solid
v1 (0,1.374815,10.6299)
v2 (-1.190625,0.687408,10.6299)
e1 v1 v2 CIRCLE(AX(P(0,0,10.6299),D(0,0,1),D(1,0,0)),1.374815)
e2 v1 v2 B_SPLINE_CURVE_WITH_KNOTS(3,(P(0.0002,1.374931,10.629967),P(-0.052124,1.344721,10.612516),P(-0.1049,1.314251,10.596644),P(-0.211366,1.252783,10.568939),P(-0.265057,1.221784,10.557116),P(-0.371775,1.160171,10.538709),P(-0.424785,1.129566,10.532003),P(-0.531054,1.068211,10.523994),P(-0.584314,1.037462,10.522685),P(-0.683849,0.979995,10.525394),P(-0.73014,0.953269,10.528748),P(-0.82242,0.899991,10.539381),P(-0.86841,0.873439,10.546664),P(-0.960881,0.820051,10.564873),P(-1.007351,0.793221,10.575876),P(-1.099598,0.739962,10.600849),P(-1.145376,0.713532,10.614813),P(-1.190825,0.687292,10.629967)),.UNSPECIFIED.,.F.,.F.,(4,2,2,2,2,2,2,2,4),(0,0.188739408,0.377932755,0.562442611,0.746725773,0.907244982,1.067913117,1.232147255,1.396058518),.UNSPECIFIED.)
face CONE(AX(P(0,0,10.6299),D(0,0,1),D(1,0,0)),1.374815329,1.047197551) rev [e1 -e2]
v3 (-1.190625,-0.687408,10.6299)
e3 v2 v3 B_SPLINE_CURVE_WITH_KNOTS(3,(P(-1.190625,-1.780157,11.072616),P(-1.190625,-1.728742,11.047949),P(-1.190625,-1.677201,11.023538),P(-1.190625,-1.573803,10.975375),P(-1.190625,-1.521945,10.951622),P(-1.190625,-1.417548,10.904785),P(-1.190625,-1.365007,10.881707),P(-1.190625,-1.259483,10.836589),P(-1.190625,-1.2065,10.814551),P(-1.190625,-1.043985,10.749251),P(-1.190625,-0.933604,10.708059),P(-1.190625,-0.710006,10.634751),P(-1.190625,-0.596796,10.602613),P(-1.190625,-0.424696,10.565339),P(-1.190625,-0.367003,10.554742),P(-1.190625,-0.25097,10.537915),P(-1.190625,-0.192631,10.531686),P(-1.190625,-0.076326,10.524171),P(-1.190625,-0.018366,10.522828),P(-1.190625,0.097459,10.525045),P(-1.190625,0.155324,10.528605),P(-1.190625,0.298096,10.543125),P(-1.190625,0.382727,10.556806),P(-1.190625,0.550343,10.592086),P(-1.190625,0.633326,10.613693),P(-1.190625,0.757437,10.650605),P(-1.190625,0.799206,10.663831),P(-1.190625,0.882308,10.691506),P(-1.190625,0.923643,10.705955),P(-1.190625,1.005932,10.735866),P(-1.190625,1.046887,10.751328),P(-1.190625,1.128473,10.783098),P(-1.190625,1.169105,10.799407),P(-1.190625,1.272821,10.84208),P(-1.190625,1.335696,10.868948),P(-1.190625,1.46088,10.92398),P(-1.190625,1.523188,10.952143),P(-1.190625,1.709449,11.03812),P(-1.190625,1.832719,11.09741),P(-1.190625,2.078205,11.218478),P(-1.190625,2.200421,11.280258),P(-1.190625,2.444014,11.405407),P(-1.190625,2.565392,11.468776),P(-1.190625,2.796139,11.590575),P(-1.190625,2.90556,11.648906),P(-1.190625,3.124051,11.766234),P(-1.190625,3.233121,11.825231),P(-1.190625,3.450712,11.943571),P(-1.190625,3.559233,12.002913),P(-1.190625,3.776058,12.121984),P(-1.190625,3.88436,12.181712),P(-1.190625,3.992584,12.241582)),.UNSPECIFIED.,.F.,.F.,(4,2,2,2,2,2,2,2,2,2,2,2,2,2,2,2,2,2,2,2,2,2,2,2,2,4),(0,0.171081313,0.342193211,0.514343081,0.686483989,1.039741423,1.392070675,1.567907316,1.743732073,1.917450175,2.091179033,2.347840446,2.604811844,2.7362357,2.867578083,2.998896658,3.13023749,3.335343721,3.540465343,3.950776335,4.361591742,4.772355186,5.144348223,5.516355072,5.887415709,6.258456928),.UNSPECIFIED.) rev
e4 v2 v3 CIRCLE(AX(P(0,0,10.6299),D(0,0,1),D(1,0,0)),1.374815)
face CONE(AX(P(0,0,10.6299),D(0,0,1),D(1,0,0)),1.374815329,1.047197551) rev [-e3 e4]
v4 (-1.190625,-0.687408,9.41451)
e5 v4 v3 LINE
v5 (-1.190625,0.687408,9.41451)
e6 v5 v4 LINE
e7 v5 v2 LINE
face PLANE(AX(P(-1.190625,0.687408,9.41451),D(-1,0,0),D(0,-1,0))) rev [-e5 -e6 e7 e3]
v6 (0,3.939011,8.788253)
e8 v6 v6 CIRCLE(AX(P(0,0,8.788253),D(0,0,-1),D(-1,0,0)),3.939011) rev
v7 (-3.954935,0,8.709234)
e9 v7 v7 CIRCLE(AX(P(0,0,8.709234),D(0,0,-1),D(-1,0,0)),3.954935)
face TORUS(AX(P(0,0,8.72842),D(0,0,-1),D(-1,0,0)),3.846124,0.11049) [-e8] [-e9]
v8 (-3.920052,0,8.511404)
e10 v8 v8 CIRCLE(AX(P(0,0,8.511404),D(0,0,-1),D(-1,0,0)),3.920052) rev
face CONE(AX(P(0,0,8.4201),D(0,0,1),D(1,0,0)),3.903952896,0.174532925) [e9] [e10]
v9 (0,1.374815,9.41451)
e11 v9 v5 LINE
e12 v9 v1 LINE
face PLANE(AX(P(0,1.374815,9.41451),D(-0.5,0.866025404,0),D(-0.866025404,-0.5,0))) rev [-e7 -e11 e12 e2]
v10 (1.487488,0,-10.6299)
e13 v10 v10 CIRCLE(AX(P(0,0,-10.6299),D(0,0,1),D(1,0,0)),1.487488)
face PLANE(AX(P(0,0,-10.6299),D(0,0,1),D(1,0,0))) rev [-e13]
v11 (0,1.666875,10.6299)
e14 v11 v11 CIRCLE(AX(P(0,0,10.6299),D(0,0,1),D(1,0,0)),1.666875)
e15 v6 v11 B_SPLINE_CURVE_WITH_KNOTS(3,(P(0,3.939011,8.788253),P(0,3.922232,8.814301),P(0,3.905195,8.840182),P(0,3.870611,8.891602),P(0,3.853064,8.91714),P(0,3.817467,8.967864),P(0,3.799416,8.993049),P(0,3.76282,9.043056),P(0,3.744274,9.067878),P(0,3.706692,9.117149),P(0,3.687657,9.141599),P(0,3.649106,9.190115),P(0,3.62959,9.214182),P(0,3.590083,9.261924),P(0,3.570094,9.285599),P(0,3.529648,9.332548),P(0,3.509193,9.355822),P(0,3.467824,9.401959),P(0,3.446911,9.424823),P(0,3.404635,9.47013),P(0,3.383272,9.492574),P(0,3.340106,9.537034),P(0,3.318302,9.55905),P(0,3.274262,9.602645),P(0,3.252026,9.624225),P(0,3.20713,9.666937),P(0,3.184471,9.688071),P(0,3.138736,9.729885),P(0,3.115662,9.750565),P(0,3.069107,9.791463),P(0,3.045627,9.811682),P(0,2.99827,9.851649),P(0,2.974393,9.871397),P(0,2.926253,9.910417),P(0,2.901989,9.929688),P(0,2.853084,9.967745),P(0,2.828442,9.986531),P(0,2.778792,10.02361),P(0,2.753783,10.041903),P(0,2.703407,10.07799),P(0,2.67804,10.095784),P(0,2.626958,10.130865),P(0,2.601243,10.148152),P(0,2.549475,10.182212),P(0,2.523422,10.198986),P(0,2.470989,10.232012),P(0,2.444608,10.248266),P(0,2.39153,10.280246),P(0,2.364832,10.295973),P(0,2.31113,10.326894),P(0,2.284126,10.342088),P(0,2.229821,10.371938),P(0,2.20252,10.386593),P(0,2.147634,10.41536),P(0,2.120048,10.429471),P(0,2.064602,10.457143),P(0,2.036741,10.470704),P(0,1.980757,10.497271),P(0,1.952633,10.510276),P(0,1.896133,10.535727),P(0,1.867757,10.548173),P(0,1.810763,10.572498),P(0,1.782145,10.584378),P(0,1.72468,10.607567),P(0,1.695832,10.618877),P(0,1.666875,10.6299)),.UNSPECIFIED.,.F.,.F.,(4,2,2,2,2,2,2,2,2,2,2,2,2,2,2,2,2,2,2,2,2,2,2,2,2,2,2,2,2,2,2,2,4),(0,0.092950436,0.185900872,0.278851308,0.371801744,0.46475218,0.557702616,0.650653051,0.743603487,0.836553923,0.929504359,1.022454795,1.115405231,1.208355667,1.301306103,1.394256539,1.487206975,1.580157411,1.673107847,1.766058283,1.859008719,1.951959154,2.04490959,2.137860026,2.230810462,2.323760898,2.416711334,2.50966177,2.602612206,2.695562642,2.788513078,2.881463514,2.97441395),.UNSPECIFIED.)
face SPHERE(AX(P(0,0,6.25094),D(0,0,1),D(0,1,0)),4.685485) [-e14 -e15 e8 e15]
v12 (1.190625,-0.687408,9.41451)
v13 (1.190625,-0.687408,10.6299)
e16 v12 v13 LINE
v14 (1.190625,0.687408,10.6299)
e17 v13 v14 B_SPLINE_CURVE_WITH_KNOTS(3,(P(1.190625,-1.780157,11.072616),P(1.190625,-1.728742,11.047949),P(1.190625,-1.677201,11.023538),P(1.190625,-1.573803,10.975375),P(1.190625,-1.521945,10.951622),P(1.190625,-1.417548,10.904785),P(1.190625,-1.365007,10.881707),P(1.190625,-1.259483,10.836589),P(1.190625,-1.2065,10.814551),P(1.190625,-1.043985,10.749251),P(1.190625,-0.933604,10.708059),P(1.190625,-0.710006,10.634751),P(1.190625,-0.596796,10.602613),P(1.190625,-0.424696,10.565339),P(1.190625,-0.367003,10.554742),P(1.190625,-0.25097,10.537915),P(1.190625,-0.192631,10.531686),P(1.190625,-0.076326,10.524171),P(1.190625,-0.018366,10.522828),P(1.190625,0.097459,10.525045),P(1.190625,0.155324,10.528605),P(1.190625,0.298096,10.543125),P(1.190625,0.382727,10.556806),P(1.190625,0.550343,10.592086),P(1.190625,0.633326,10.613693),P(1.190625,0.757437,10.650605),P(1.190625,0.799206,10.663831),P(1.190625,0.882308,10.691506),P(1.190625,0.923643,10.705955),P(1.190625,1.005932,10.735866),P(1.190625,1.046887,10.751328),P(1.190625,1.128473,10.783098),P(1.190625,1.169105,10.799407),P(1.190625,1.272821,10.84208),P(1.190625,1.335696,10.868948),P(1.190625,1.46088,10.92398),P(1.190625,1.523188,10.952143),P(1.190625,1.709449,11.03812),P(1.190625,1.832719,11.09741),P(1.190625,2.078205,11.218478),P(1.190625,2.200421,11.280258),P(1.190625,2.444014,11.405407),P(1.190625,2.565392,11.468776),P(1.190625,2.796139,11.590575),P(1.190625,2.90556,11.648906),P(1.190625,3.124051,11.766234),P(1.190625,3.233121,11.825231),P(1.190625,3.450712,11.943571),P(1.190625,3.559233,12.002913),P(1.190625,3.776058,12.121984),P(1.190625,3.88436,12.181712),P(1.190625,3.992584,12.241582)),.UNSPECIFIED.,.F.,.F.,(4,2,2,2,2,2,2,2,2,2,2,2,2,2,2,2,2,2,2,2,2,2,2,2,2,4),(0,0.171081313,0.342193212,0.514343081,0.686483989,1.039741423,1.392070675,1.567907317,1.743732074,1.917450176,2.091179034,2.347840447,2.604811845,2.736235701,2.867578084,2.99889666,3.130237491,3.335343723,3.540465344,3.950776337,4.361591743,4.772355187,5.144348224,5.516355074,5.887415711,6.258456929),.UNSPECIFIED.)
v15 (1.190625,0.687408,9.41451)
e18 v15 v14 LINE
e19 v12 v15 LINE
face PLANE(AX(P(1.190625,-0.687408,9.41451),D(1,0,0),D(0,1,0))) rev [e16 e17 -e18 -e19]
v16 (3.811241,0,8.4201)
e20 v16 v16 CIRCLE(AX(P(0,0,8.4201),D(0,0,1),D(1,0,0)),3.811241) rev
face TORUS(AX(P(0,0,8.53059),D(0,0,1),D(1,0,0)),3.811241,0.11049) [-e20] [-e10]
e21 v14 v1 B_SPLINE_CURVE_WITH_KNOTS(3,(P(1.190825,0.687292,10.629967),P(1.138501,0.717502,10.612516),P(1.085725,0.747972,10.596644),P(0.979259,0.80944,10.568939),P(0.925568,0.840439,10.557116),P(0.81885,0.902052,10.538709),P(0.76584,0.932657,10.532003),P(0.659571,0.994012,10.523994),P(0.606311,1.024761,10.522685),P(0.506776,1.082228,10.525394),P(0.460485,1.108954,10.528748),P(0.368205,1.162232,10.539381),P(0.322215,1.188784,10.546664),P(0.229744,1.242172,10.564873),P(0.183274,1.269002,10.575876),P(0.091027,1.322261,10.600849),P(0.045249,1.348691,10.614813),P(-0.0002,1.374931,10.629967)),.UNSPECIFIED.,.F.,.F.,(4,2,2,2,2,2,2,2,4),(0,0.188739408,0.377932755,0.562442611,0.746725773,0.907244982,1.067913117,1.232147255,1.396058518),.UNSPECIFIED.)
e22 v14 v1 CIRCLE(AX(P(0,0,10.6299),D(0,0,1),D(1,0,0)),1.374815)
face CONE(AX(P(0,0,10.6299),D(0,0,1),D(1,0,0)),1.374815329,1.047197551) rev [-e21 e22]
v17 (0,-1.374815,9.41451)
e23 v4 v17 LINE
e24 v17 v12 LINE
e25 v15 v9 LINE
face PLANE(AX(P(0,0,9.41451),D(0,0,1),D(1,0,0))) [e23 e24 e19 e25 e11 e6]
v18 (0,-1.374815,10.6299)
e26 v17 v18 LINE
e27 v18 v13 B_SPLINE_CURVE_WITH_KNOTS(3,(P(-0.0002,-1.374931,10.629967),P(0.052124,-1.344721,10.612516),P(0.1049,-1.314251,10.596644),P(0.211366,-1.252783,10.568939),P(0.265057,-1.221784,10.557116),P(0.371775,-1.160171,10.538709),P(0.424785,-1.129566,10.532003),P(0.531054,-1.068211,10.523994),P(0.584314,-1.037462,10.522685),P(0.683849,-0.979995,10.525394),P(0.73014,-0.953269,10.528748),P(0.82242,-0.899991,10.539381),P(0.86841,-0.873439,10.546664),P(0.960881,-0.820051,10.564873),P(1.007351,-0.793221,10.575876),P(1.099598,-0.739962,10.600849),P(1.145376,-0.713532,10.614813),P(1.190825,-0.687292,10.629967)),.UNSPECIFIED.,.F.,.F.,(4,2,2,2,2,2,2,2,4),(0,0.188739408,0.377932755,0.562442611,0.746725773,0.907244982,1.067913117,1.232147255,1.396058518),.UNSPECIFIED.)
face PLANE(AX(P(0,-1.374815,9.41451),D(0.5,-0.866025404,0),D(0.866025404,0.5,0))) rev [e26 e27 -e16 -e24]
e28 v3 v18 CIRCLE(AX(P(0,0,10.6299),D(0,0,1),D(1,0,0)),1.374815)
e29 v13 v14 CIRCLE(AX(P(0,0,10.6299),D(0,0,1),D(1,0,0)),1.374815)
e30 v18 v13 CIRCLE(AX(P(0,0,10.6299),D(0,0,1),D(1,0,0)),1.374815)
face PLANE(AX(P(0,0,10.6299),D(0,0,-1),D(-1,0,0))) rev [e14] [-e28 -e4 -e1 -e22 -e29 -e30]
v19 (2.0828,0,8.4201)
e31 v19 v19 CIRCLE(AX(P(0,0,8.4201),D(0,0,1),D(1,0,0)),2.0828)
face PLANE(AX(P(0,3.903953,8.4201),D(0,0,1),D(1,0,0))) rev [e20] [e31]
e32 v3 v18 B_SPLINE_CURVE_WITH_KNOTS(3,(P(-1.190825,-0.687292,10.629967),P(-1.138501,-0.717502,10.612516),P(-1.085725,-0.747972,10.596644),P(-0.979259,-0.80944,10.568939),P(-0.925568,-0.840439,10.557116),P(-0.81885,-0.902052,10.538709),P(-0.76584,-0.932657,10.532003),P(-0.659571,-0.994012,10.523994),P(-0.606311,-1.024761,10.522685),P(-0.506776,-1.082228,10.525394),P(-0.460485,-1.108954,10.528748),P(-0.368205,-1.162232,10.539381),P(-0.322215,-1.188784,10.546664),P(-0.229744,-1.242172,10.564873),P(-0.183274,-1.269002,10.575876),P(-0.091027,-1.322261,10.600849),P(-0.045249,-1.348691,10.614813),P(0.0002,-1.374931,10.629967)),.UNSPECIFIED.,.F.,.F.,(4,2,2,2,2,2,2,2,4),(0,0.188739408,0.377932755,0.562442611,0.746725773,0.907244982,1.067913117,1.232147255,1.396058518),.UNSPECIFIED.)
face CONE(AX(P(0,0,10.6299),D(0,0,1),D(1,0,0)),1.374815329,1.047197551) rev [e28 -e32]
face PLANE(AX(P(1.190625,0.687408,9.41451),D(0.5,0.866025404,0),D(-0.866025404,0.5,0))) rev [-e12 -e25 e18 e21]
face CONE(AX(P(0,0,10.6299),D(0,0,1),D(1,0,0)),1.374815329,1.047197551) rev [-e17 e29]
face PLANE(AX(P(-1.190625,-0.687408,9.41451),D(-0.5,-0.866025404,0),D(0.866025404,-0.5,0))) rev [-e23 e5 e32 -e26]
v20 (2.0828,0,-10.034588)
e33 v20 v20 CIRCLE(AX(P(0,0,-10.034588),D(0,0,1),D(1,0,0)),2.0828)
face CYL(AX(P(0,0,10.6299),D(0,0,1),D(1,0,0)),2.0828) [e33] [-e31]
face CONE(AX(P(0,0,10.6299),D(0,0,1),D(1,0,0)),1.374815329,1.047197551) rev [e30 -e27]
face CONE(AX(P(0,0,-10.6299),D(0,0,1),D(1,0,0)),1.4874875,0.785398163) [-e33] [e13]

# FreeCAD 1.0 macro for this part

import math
import FreeCAD as App
import Part
import Sketcher
from FreeCAD import Vector
Q = App.Units.Quantity


def edges_at(feature, points):
    """Names of the edges that pass closest to the given points."""
    edges = feature.Shape.Edges
    near = lambda p: min(range(len(edges)), key=lambda i: edges[i].distToShape(Part.Vertex(*p))[0])
    return sorted({f"Edge{near(p) + 1}" for p in points})


def add_polygon(sketch, points):
    """Adds a closed chain of lines whose ends are joined by coincident constraints."""
    first, n = sketch.GeometryCount, len(points)
    for a, b in zip(points, points[1:] + points[:1]):
        sketch.addGeometry(Part.LineSegment(App.Vector(*a, 0), App.Vector(*b, 0)), False)
    for i in range(n):
        sketch.addConstraint(Sketcher.Constraint("Coincident", first + i, 2, first + (i + 1) % n, 1))

doc = App.newDocument("Part")
params = doc.addObject("Spreadsheet::Sheet", "Params")
for row, (alias, value) in enumerate([
    ("sketch1_height", "0.837 in"),
    ("revolution_angle", "360 deg"),
    ("pocket1_length", "1.21539 mm"),
    ("sketch3_height", "0.03125 in"),
    ("groove_angle", "360 deg"),
    ("fillet_radius", "0.11049 mm"),
], start=1):
    params.set(f"A{row}", alias)
    params.set(f"B{row}", "=" + value)
    params.setAlias(f"B{row}", alias)

body = doc.addObject("PartDesign::Body", "Body")

sketch1 = body.newObject("Sketcher::SketchObject", "Sketch")
sketch1.AttachmentSupport = (doc.getObject("YZ_Plane"), [""])
sketch1.MapMode = "FlatFace"
sketch1.addGeometry(Part.LineSegment(Vector(1.666875, 10.6299, 0), Vector(0, 10.6299, 0)), False)
sketch1.addGeometry(Part.LineSegment(Vector(0, 10.6299, 0), Vector(0, -10.6299, 0)), False)
sketch1.addGeometry(Part.LineSegment(Vector(0, -10.6299, 0), Vector(1.487488, -10.6299, 0)), False)
sketch1.addGeometry(Part.LineSegment(Vector(1.487488, -10.6299, 0), Vector(2.0828, -10.034588, 0)), False)
sketch1.addGeometry(Part.LineSegment(Vector(2.0828, -10.034588, 0), Vector(2.0828, 8.4201, 0)), False)
sketch1.addGeometry(Part.LineSegment(Vector(2.0828, 8.4201, 0), Vector(3.903953, 8.4201, 0)), False)
sketch1.addGeometry(Part.LineSegment(Vector(3.903953, 8.4201, 0), Vector(3.9624, 8.75157, 0)), False)
sketch1.addGeometry(Part.ArcOfCircle(Part.Circle(Vector(0, 6.25094, 0), Vector(0, 0, 1), 4.685485), math.radians(32.255606), math.radians(69.160402)), False)
sketch1.addConstraint(Sketcher.Constraint("Coincident", 0, 2, 1, 1))
sketch1.addConstraint(Sketcher.Constraint("Coincident", 1, 2, 2, 1))
sketch1.addConstraint(Sketcher.Constraint("Coincident", 2, 2, 3, 1))
sketch1.addConstraint(Sketcher.Constraint("Coincident", 3, 2, 4, 1))
sketch1.addConstraint(Sketcher.Constraint("Coincident", 4, 2, 5, 1))
sketch1.addConstraint(Sketcher.Constraint("Coincident", 5, 2, 6, 1))
sketch1.addConstraint(Sketcher.Constraint("Coincident", 6, 2, 7, 1))
sketch1.addConstraint(Sketcher.Constraint("Coincident", 7, 2, 0, 1))
sketch1.addConstraint(Sketcher.Constraint("Horizontal", 0))
sketch1.addConstraint(Sketcher.Constraint("Vertical", 1))
sketch1.addConstraint(Sketcher.Constraint("Horizontal", 2))
sketch1.addConstraint(Sketcher.Constraint("Vertical", 4))
sketch1.addConstraint(Sketcher.Constraint("Horizontal", 5))
sketch1.addConstraint(Sketcher.Constraint("Symmetric", 0, 2, 1, 2, -1, 1))
sketch1.addConstraint(Sketcher.Constraint("PointOnObject", 7, 3, -2))
sketch1.addConstraint(Sketcher.Constraint("Angle", 3, Q("45 deg")))
sketch1.addConstraint(Sketcher.Constraint("Angle", 6, Q("80 deg")))
sketch1.addConstraint(Sketcher.Constraint("DistanceY", 1, 2, 1, 1, Q("0.837 in")))
sketch1.addConstraint(Sketcher.Constraint("DistanceY", 2, 2, 4, 2, Q("0.75 in")))
sketch1.addConstraint(Sketcher.Constraint("DistanceX", -1, 1, 3, 2, Q("0.082 in")))
sketch1.addConstraint(Sketcher.Constraint("DistanceX", -1, 1, 6, 2, Q("0.156 in")))
sketch1.addConstraint(Sketcher.Constraint("DistanceY", -1, 1, 7, 3, Q("0.2461 in")))
sketch1.addConstraint(Sketcher.Constraint("Radius", 7, Q("4.685485 mm")))
sketch1.addConstraint(Sketcher.Constraint("Distance", 3, Q("0.841899 mm")))
sketch1.setExpression("Constraints[17]", "Params.sketch1_height")
revolution = body.newObject("PartDesign::Revolution", "Revolution")
revolution.Profile = sketch1
revolution.ReferenceAxis = (sketch1, ["V_Axis"])
revolution.setExpression("Angle", "Params.revolution_angle")

sketch2 = body.newObject("Sketcher::SketchObject", "Sketch001")
sketch2.AttachmentSupport = (doc.getObject("XY_Plane"), [""])
sketch2.MapMode = "FlatFace"
sketch2.AttachmentOffset = App.Placement(Vector(0, 0, 0.4185 * 25.4), App.Rotation())
add_polygon(sketch2, [(-1.190625, -0.687408), (0, -1.374815), (1.190625, -0.687408), (1.190625, 0.687408), (0, 1.374815), (-1.190625, 0.687408)])
sketch2.addConstraint(Sketcher.Constraint("Vertical", 2))
sketch2.addConstraint(Sketcher.Constraint("Vertical", 5))
sketch2.addConstraint(Sketcher.Constraint("Symmetric", 0, 2, 3, 2, -1, 1))
sketch2.addConstraint(Sketcher.Constraint("Symmetric", 1, 2, 4, 2, -1, 1))
sketch2.addConstraint(Sketcher.Constraint("PointOnObject", 0, 2, -2))
sketch2.addConstraint(Sketcher.Constraint("Parallel", 0, 3))
sketch2.addConstraint(Sketcher.Constraint("Horizontal", 2, 2, 4, 2))
sketch2.addConstraint(Sketcher.Constraint("Angle", 0, Q("-30 deg")))
sketch2.addConstraint(Sketcher.Constraint("DistanceX", -1, 1, 1, 2, Q("0.046875 in")))
sketch2.addConstraint(Sketcher.Constraint("DistanceY", 2, 1, 2, 2, Q("1.374815 mm")))
pocket1 = body.newObject("PartDesign::Pocket", "Pocket")
pocket1.Profile = sketch2
pocket1.setExpression("Length", "Params.pocket1_length")

sketch3 = body.newObject("Sketcher::SketchObject", "Sketch002")
sketch3.AttachmentSupport = (doc.getObject("YZ_Plane"), [""])
sketch3.MapMode = "FlatFace"
add_polygon(sketch3, [(0, 10.6299), (-1.374815, 10.6299), (0, 9.83615)])
sketch3.addConstraint(Sketcher.Constraint("Horizontal", 0))
sketch3.addConstraint(Sketcher.Constraint("Vertical", 2))
sketch3.addConstraint(Sketcher.Constraint("PointOnObject", 1, 2, -2))
sketch3.addConstraint(Sketcher.Constraint("Angle", 1, Q("-30 deg")))
sketch3.addConstraint(Sketcher.Constraint("DistanceY", 2, 1, 2, 2, Q("0.03125 in")))
sketch3.addConstraint(Sketcher.Constraint("DistanceY", -1, 1, 0, 2, Q("0.4185 in")))
sketch3.setExpression("Constraints[7]", "Params.sketch3_height")
groove = body.newObject("PartDesign::Groove", "Groove")
groove.Profile = sketch3
groove.ReferenceAxis = (sketch3, ["V_Axis"])
groove.setExpression("Angle", "Params.groove_angle")
doc.recompute()

fillet = body.newObject("PartDesign::Fillet", "Fillet")
fillet.Base = (groove, edges_at(groove, [(-3.904, 0, 8.42), (-3.962, 0, 8.752)]))
fillet.setExpression("Radius", "Params.fillet_radius")

doc.recompute()
